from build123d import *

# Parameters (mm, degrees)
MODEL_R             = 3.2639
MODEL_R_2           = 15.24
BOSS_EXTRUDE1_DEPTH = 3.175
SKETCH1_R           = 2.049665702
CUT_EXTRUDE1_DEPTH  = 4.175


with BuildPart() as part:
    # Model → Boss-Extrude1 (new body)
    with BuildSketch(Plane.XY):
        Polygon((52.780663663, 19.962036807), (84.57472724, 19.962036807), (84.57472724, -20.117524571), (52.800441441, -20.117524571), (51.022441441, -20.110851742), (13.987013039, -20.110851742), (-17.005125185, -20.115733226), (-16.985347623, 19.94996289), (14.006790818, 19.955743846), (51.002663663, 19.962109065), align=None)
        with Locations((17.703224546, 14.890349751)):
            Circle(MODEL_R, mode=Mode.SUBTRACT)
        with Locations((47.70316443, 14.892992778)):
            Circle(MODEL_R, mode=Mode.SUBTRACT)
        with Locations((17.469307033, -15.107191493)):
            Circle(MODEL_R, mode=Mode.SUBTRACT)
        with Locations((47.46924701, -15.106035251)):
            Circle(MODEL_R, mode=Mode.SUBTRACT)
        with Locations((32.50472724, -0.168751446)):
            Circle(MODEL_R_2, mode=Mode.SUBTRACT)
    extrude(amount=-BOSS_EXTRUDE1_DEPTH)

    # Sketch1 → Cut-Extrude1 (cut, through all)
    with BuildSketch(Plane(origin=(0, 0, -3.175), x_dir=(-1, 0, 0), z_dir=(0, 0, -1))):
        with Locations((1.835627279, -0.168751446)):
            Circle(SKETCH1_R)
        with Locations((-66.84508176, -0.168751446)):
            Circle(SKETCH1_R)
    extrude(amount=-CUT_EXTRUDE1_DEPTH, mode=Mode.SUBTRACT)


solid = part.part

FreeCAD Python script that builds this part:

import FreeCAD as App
import Part
import Sketcher
Q = App.Units.Quantity

doc = App.newDocument("Part")
params = doc.addObject("Spreadsheet::Sheet", "Params")
for row, (alias, value) in enumerate([
    ("sketch1_diameter", "1.2 in"),
    ("sketch1_diameter2", "0.257 in"),
    ("sketch1_length", "0.07 in"),
    ("pad1_length", "0.125 in"),
], start=1):
    params.set(f"A{row}", alias)
    params.set(f"B{row}", "=" + value)
    params.setAlias(f"B{row}", alias)

body = doc.addObject("PartDesign::Body", "Body")

sketch1 = body.newObject("Sketcher::SketchObject", "Sketch")
sketch1.AttachmentSupport = (doc.getObject("XY_Plane"), [""])
sketch1.MapMode = "FlatFace"
sketch1.addGeometry([
    Part.LineSegment(App.Vector(84.6, 20, 0), App.Vector(52.8, 20, 0)),
    Part.LineSegment(App.Vector(52.8, 20, 0), App.Vector(51, 20, 0)),
    Part.LineSegment(App.Vector(51, 20, 0), App.Vector(14, 20, 0)),
    Part.LineSegment(App.Vector(14, 20, 0), App.Vector(-17, 19.9, 0)),
    Part.LineSegment(App.Vector(-17, 19.9, 0), App.Vector(-17, -20.1, 0)),
    Part.LineSegment(App.Vector(-17, -20.1, 0), App.Vector(14, -20.1, 0)),
    Part.LineSegment(App.Vector(14, -20.1, 0), App.Vector(51, -20.1, 0)),
    Part.LineSegment(App.Vector(51, -20.1, 0), App.Vector(52.8, -20.1, 0)),
    Part.LineSegment(App.Vector(52.8, -20.1, 0), App.Vector(84.6, -20.1, 0)),
    Part.LineSegment(App.Vector(84.6, -20.1, 0), App.Vector(84.6, 20, 0)),
    Part.Circle(App.Vector(47.5, -15.1, 0), App.Vector(0, 0, 1), 3.3),
    Part.Circle(App.Vector(17.5, -15.1, 0), App.Vector(0, 0, 1), 3.3),
    Part.Circle(App.Vector(32.5, -0.2, 0), App.Vector(0, 0, 1), 15.2),
    Part.Circle(App.Vector(47.7, 14.9, 0), App.Vector(0, 0, 1), 3.3),
    Part.Circle(App.Vector(17.7, 14.9, 0), App.Vector(0, 0, 1), 3.3),
], False)
sketch1.addConstraint([
    Sketcher.Constraint("Coincident", 0, 2, 1, 1),
    Sketcher.Constraint("Coincident", 1, 2, 2, 1),
    Sketcher.Constraint("Coincident", 2, 2, 3, 1),
    Sketcher.Constraint("Coincident", 3, 2, 4, 1),
    Sketcher.Constraint("Coincident", 4, 2, 5, 1),
    Sketcher.Constraint("Coincident", 5, 2, 6, 1),
    Sketcher.Constraint("Coincident", 6, 2, 7, 1),
    Sketcher.Constraint("Coincident", 7, 2, 8, 1),
    Sketcher.Constraint("Coincident", 8, 2, 9, 1),
    Sketcher.Constraint("Coincident", 9, 2, 0, 1),
    Sketcher.Constraint("Horizontal", 0),
    Sketcher.Constraint("Horizontal", 6),
    Sketcher.Constraint("Horizontal", 8),
    Sketcher.Constraint("Vertical", 9),
    Sketcher.Constraint("Equal", 10, 11),
    Sketcher.Constraint("Equal", 11, 13),
    Sketcher.Constraint("Equal", 13, 14),
    Sketcher.Constraint("Equal", 3, 5),
    Sketcher.Constraint("Diameter", 12, Q("1.2 in")),
    Sketcher.Constraint("Diameter", 10, Q("0.257 in")),
    Sketcher.Constraint("Distance", 1, Q("0.07 in")),
    Sketcher.Constraint("DistanceX", 6, 2, 7, 2, Q("0.07 in")),
    Sketcher.Constraint("DistanceY", 5, 2, 14, 3, Q("1.3780001 in")),
    Sketcher.Constraint("DistanceX", 11, 3, 10, 3, Q("1.1811 in")),
    Sketcher.Constraint("DistanceX", 14, 3, 13, 3, Q("1.1811 in")),
    Sketcher.Constraint("Distance", 4, 40.065701),
    Sketcher.Constraint("DistanceX", 6, 1, 6, 2, 37.035428),
    Sketcher.Constraint("DistanceY", 9, 1, 9, 2, 40.079561),
    Sketcher.Constraint("DistanceY", 12, 3, 14, 3, 15.059101),
    Sketcher.Constraint("DistanceX", 13, 3, 0, 2, 5.077499),
    Sketcher.Constraint("Distance", 3, 30.992139),
    Sketcher.Constraint("DistanceX", 0, 2, 0, 1, 31.794064),
    Sketcher.Constraint("DistanceX", 8, 1, 8, 2, 31.774286),
    Sketcher.Constraint("DistanceY", 11, 3, -1, 1, 15.107191),
    Sketcher.Constraint("DistanceY", 12, 3, -1, 1, 0.168751),
    Sketcher.Constraint("DistanceY", -1, 1, 1, 2, 19.962109),
    Sketcher.Constraint("DistanceX", -1, 1, 2, 2, 14.006791),
    Sketcher.Constraint("DistanceX", -1, 1, 6, 2, 51.022441),
    Sketcher.Constraint("DistanceX", 12, 3, 10, 3, 14.96452),
    Sketcher.Constraint("DistanceY", 10, 3, 13, 3, 29.999028),
    Sketcher.Constraint("DistanceY", 12, 3, 0, 2, 20.130788),
    Sketcher.Constraint("DistanceY", 13, 3, 2, 2, 5.062751),
    Sketcher.Constraint("DistanceY", 3, 2, 2, 2, 0.005781),
    Sketcher.Constraint("DistanceY", 4, 2, 11, 3, 5.008542),
    Sketcher.Constraint("DistanceX", 10, 3, 8, 2, 37.10548),
])
sketch1.setExpression("Constraints[18]", "Params.sketch1_diameter")
sketch1.setExpression("Constraints[19]", "Params.sketch1_diameter2")
sketch1.setExpression("Constraints[20]", "Params.sketch1_length")
pad1 = body.newObject("PartDesign::Pad", "Pad")
pad1.Profile = sketch1
pad1.setExpression("Length", "Params.pad1_length")
pad1.Reversed = True

sketch2 = body.newObject("Sketcher::SketchObject", "Sketch001")
sketch2.AttachmentSupport = (doc.getObject("XY_Plane"), [""])
sketch2.MapMode = "FlatFace"
sketch2.AttachmentOffset = App.Placement(App.Vector(0, 0, -0.125 * 25.4), App.Rotation())
sketch2.addGeometry([
    Part.Circle(App.Vector(-1.8, -0.2, 0), App.Vector(0, 0, 1), 2),
    Part.Circle(App.Vector(66.8, -0.2, 0), App.Vector(0, 0, 1), 2),
], False)
sketch2.addConstraint([
    Sketcher.Constraint("Equal", 0, 1),
    Sketcher.Constraint("Horizontal", 0, 3, 1, 3),
    Sketcher.Constraint("Diameter", 0, 4.099331),
    Sketcher.Constraint("DistanceY", 0, 3, -1, 1, 0.168751),
    Sketcher.Constraint("DistanceX", -1, 1, 1, 3, 66.845082),
    Sketcher.Constraint("DistanceX", 0, 3, 1, 3, 68.680709),
])
pocket1 = body.newObject("PartDesign::Pocket", "Pocket")
pocket1.Profile = sketch2
pocket1.Type = "ThroughAll"
pocket1.Reversed = True

doc.recompute()
